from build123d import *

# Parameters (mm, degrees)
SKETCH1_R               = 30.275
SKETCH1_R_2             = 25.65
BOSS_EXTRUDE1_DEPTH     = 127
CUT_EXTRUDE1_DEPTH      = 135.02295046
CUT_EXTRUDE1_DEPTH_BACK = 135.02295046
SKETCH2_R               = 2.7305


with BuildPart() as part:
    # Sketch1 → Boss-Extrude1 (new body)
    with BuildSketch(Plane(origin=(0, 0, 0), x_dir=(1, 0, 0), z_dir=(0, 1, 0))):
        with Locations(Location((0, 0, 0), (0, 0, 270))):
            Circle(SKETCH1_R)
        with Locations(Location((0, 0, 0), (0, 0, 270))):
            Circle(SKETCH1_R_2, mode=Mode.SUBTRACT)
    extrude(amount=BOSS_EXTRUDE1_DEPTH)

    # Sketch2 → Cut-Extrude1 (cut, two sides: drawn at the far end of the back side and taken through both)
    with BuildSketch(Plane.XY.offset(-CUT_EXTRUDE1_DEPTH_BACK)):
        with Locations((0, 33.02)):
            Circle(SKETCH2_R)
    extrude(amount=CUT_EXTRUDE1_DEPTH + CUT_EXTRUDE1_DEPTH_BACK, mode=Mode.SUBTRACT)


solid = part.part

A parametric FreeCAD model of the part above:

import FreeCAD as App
import Part
import Sketcher
Q = App.Units.Quantity

doc = App.newDocument("Part")
body = doc.addObject("PartDesign::Body", "Body")

# Sketch on XZ plane
sketch1 = body.newObject("Sketcher::SketchObject", "Sketch")
sketch1.AttachmentSupport = (doc.getObject("XZ_Plane"), [""])
sketch1.MapMode = "FlatFace"
sketch1.addGeometry(Part.Circle(App.Vector(0, 0, 0), App.Vector(0, 0, 1), 30), False)
sketch1.addGeometry(Part.Circle(App.Vector(0, 0, 0), App.Vector(0, 0, 1), 26), False)
sketch1.addConstraint(Sketcher.Constraint("Coincident", 0, 3, -1, 1))
sketch1.addConstraint(Sketcher.Constraint("Coincident", 1, 3, -1, 1))
sketch1.addConstraint(Sketcher.Constraint("Diameter", 0, 60.55))
sketch1.addConstraint(Sketcher.Constraint("Diameter", 1, 51.3))
pad1 = body.newObject("PartDesign::Pad", "Pad")
pad1.Profile = sketch1
pad1.Length = Q("5 in")
pad1.Reversed = True

# Sketch on XY plane
sketch2 = body.newObject("Sketcher::SketchObject", "Sketch001")
sketch2.AttachmentSupport = (doc.getObject("XY_Plane"), [""])
sketch2.MapMode = "FlatFace"
sketch2.addGeometry(Part.Circle(App.Vector(0, 33, 0), App.Vector(0, 0, 1), 2.7), False)
sketch2.addConstraint(Sketcher.Constraint("PointOnObject", 0, 3, -2))
sketch2.addConstraint(Sketcher.Constraint("Diameter", 0, Q("0.215 in")))
sketch2.addConstraint(Sketcher.Constraint("DistanceY", -1, 1, 0, 3, Q("1.3 in")))
pocket1 = body.newObject("PartDesign::Pocket", "Pocket")
pocket1.Profile = sketch2
pocket1.Type = "ThroughAll"
pocket1.Midplane = True

doc.recompute()
